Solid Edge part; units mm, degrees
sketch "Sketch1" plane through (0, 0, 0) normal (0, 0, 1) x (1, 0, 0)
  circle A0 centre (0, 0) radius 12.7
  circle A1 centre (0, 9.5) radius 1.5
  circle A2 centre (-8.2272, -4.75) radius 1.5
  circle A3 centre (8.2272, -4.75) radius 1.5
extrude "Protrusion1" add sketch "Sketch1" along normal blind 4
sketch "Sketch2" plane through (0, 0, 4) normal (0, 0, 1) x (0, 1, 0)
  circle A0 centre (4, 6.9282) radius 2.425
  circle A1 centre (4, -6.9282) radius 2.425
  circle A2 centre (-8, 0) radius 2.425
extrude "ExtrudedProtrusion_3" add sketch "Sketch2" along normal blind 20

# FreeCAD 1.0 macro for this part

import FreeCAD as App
import Part
import Sketcher
from FreeCAD import Vector

doc = App.newDocument("Part")
body = doc.addObject("PartDesign::Body", "Body")

# Sketch on XY plane
sketch1 = body.newObject("Sketcher::SketchObject", "Sketch")
sketch1.AttachmentSupport = (doc.getObject("XY_Plane"), [""])
sketch1.MapMode = "FlatFace"
sketch1.addGeometry([
    Part.Circle(Vector(0, 0, 0), Vector(0, 0, 1), 12.7),
    Part.Circle(Vector(-8.2, -4.8, 0), Vector(0, 0, 1), 1.5),
    Part.Circle(Vector(8.2, -4.8, 0), Vector(0, 0, 1), 1.5),
    Part.Circle(Vector(0, 9.5, 0), Vector(0, 0, 1), 1.5),
], False)
sketch1.addConstraint([
    Sketcher.Constraint("Coincident", 0, 3, -1, 1),
    Sketcher.Constraint("Equal", 1, 2),
    Sketcher.Constraint("Equal", 2, 3),
    Sketcher.Constraint("Symmetric", 1, 3, 2, 3, -2),
    Sketcher.Constraint("PointOnObject", 3, 3, -2),
    Sketcher.Constraint("Diameter", 1, 3.0),
    Sketcher.Constraint("Diameter", 0, 25.4),
    Sketcher.Constraint("DistanceY", -1, 1, 3, 3, 9.5),
    Sketcher.Constraint("DistanceY", 1, 3, -1, 1, 4.75),
    Sketcher.Constraint("DistanceX", 1, 3, -1, 1, 8.2272),
])
pad1 = body.newObject("PartDesign::Pad", "Pad")
pad1.Profile = sketch1
pad1.Length = 4

# Sketch on XY plane
sketch2 = body.newObject("Sketcher::SketchObject", "Sketch001")
sketch2.AttachmentSupport = (doc.getObject("XY_Plane"), [""])
sketch2.MapMode = "FlatFace"
sketch2.AttachmentOffset = App.Placement(Vector(0, 0, 4), App.Rotation())
sketch2.addGeometry([
    Part.Circle(Vector(-6.9, 4, 0), Vector(0, 0, 1), 2.4),
    Part.Circle(Vector(6.9, 4, 0), Vector(0, 0, 1), 2.4),
    Part.Circle(Vector(0, -8, 0), Vector(0, 0, 1), 2.4),
], False)
sketch2.addConstraint([
    Sketcher.Constraint("Equal", 0, 1),
    Sketcher.Constraint("Equal", 1, 2),
    Sketcher.Constraint("Symmetric", 0, 3, 1, 3, -2),
    Sketcher.Constraint("PointOnObject", 2, 3, -2),
    Sketcher.Constraint("Diameter", 0, 4.85),
    Sketcher.Constraint("DistanceY", -1, 1, 0, 3, 4.0),
    Sketcher.Constraint("DistanceY", 2, 3, -1, 1, 8.0),
    Sketcher.Constraint("DistanceX", 0, 3, -1, 1, 6.9282),
])
pad2 = body.newObject("PartDesign::Pad", "Pad001")
pad2.Profile = sketch2
pad2.Length = 20

doc.recompute()
